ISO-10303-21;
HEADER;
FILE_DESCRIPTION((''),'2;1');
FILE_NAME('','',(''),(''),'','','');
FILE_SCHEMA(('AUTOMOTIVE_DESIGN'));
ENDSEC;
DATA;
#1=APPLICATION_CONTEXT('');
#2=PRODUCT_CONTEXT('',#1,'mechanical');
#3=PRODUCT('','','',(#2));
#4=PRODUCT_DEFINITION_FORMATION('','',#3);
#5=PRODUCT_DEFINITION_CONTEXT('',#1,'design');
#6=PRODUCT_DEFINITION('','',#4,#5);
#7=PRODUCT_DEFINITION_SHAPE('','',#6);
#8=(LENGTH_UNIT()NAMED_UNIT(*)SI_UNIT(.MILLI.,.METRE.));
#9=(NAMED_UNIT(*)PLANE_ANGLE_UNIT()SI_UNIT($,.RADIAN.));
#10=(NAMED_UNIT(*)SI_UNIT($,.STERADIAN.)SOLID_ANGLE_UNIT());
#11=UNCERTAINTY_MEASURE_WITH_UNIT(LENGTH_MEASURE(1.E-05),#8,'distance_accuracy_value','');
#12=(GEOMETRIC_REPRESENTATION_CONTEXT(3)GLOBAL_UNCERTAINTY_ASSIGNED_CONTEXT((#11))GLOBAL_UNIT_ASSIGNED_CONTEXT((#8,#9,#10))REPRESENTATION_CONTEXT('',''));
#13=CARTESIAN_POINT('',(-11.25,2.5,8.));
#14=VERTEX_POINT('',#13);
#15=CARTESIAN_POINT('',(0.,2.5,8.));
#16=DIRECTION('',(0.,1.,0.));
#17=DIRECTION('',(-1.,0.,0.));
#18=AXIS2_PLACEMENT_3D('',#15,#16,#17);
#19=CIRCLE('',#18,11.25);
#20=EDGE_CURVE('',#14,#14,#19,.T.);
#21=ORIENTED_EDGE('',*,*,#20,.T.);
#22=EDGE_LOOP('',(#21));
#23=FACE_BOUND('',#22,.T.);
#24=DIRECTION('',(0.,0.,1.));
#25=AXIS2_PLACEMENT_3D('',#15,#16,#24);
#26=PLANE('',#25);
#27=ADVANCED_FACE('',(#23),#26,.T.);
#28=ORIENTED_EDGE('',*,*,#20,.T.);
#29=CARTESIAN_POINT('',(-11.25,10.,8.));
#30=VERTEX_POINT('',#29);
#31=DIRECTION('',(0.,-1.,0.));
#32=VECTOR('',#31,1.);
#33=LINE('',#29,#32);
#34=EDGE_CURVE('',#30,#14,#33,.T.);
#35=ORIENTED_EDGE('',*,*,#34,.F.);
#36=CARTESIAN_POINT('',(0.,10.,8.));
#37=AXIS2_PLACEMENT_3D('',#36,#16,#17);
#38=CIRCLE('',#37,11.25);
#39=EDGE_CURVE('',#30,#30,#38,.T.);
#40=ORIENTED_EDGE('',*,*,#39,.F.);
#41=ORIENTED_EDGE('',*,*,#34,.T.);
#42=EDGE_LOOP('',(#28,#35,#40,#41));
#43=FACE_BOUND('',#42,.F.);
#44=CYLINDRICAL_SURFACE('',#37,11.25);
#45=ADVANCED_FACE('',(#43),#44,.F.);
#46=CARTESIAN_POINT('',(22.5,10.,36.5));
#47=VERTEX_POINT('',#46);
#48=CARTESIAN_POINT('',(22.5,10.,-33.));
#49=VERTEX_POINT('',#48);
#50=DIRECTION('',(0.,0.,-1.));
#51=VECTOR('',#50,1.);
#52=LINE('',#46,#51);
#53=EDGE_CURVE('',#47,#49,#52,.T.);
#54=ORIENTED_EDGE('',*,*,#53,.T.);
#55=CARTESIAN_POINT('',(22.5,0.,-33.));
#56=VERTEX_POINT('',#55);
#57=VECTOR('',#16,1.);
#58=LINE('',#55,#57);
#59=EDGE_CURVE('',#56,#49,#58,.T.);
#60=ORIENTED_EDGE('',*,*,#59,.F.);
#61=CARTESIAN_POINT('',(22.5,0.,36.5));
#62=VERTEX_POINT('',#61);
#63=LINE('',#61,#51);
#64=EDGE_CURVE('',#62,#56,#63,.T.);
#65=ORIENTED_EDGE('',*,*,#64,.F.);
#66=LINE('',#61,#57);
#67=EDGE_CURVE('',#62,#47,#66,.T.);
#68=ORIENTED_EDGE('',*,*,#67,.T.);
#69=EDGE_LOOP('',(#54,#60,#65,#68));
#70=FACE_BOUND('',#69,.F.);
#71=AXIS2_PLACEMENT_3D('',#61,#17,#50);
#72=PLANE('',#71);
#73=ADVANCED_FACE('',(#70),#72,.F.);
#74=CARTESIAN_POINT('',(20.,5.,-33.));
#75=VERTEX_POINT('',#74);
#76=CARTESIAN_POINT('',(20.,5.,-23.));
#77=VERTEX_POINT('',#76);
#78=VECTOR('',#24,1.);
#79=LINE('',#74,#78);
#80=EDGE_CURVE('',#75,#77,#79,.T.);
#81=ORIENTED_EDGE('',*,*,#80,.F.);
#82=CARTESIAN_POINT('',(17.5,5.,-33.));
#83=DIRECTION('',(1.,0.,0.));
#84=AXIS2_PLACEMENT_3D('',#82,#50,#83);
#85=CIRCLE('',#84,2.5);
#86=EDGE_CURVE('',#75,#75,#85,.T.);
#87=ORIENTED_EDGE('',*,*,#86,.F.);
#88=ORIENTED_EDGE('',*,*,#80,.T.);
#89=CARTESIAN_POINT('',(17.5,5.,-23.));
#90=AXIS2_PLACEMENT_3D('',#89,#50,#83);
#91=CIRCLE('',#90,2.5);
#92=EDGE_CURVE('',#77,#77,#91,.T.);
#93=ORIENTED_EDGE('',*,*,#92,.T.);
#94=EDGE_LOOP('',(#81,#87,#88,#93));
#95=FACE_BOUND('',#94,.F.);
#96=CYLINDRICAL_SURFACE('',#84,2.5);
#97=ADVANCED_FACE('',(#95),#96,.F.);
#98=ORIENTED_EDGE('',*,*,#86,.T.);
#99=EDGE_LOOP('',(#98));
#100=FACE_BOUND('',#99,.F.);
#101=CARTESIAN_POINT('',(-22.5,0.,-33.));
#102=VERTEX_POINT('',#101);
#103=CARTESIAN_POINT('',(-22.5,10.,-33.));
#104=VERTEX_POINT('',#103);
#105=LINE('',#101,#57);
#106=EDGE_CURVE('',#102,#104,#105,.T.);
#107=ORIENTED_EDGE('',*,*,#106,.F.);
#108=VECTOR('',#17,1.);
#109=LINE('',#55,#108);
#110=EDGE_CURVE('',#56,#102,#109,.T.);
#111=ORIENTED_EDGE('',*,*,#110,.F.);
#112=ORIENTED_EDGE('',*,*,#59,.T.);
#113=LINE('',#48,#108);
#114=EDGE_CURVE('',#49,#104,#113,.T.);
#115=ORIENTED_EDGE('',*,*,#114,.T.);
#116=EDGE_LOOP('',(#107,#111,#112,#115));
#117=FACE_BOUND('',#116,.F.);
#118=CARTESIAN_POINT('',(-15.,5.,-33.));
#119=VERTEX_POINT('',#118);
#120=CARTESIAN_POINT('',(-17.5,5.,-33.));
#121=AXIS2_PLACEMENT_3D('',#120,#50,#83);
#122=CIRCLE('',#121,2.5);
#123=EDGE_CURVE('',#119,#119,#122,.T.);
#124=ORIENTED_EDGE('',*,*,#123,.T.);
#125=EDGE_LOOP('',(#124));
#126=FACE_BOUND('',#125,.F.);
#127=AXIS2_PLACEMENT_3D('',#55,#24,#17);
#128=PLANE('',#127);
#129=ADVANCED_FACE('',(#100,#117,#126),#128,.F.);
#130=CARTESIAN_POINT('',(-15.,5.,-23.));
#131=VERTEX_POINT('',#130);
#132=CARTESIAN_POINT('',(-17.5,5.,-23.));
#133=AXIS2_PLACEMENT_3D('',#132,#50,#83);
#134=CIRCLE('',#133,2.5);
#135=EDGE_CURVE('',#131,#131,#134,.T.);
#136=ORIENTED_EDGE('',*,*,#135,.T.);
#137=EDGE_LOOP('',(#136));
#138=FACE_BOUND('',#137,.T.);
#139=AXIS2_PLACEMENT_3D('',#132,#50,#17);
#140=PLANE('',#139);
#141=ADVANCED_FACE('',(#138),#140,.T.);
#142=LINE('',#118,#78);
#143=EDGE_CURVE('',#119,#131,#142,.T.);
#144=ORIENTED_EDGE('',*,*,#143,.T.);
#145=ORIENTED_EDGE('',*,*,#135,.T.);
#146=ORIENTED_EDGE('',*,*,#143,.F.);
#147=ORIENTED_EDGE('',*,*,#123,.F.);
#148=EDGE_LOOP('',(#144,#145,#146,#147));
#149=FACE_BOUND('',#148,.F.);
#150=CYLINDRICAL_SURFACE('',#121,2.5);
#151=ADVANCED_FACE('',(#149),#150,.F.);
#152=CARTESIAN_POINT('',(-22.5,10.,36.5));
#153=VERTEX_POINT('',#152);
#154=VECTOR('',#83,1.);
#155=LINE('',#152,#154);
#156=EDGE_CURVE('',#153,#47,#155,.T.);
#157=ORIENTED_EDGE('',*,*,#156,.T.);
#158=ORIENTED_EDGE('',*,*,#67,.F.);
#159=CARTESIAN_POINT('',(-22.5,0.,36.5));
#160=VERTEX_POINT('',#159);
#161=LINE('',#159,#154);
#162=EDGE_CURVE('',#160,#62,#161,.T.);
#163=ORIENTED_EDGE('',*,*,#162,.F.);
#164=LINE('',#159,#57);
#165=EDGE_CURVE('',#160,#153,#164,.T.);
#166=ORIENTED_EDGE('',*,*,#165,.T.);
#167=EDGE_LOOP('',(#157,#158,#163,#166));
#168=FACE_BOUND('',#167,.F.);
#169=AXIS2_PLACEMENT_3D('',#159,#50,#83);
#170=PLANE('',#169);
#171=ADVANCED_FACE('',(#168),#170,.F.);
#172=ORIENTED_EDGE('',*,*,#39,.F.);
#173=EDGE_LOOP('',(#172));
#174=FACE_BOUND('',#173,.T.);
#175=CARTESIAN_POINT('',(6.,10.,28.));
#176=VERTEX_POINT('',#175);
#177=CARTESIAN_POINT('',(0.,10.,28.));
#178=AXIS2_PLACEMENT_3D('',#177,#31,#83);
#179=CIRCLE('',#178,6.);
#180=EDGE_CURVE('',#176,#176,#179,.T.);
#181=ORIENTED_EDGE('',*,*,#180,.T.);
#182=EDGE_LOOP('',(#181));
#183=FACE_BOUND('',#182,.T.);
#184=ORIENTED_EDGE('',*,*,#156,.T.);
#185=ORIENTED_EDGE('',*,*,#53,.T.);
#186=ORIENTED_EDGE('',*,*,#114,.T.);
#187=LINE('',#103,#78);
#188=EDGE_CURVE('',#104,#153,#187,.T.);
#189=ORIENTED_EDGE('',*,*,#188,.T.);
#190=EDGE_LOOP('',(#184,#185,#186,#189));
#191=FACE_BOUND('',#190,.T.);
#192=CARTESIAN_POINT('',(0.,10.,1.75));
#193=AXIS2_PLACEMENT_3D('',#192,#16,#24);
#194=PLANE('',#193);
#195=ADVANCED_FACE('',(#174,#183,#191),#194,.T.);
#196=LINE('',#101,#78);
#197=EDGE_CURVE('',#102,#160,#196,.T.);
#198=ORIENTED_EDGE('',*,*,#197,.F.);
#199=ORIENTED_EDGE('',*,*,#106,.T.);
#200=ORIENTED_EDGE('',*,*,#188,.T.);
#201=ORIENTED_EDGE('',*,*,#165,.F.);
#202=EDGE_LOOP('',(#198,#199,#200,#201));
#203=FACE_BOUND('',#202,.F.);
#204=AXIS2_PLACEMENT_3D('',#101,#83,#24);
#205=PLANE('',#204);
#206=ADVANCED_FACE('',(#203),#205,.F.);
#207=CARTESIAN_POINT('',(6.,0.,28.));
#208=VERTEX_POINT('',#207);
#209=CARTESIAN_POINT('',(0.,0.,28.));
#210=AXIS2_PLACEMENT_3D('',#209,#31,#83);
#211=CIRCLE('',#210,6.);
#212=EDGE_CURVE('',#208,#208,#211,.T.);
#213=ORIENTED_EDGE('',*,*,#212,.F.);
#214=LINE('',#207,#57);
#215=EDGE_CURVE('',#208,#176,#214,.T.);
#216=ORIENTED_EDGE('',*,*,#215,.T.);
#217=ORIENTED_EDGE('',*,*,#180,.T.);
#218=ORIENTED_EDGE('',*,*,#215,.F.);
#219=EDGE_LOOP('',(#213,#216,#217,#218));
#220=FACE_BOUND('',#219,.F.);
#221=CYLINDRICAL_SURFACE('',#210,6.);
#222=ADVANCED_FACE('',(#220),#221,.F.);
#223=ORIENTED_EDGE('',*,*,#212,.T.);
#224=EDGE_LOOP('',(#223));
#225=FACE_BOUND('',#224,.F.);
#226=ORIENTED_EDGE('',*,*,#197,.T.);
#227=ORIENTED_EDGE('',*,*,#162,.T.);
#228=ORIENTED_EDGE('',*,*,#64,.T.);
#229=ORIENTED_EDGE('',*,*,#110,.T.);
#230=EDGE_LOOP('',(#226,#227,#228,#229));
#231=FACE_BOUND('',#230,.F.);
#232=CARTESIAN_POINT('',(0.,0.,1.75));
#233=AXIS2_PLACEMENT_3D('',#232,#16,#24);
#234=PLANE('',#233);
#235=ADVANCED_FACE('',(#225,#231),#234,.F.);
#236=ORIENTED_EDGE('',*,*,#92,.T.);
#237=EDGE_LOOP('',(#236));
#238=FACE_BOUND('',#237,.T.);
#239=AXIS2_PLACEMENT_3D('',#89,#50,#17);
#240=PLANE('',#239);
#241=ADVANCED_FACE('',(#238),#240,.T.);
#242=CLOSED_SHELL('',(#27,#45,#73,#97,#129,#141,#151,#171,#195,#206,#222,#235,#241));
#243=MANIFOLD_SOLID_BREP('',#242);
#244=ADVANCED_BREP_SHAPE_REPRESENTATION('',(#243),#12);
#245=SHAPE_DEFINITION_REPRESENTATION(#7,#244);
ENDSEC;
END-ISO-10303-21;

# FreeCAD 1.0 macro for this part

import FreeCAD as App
import Part
import Sketcher
from FreeCAD import Vector
Q = App.Units.Quantity


def add_polygon(sketch, points):
    """Adds a closed chain of lines whose ends are joined by coincident constraints."""
    first, n = sketch.GeometryCount, len(points)
    for a, b in zip(points, points[1:] + points[:1]):
        sketch.addGeometry(Part.LineSegment(App.Vector(*a, 0), App.Vector(*b, 0)), False)
    for i in range(n):
        sketch.addConstraint(Sketcher.Constraint("Coincident", first + i, 2, first + (i + 1) % n, 1))

doc = App.newDocument("Part")
params = doc.addObject("Spreadsheet::Sheet", "Params")
for row, (alias, value) in enumerate([
    ("sketch1_diameter", "12 mm"),
    ("sketch1_diameter2", "9.2 mm"),
    ("sketch1_width", "45 mm"),
    ("sketch1_height", "69.5 mm"),
    ("pad1_length", "10 mm"),
    ("sketch2_diameter", "22.5 mm"),
    ("pocket1_length", "7.5 mm"),
    ("sketch3_diameter", "5 mm"),
    ("pocket2_length", "10 mm"),
    ("sketch4_diameter", "9.2 mm"),
    ("pad2_length", "2.5 mm"),
    ("sketch5_diameter", "5 mm"),
    ("pocket3_length", "10 mm"),
], start=1):
    params.set(f"A{row}", alias)
    params.set(f"B{row}", "=" + value)
    params.setAlias(f"B{row}", alias)

body = doc.addObject("PartDesign::Body", "Body")

# Sketch on XZ plane
sketch1 = body.newObject("Sketcher::SketchObject", "Sketch")
sketch1.AttachmentSupport = (doc.getObject("XZ_Plane"), [""])
sketch1.MapMode = "FlatFace"
add_polygon(sketch1, [(22.5, -33), (22.5, 36.5), (-22.5, 36.5), (-22.5, -33)])  # lines 0-3
sketch1.addGeometry(Part.Circle(Vector(0, 8, 0), Vector(0, 0, 1), 4.6), False)  # 4
sketch1.addGeometry(Part.Circle(Vector(0, 28, 0), Vector(0, 0, 1), 6), False)  # 5
sketch1.addConstraint(Sketcher.Constraint("Vertical", 0))
sketch1.addConstraint(Sketcher.Constraint("Horizontal", 1))
sketch1.addConstraint(Sketcher.Constraint("Vertical", 2))
sketch1.addConstraint(Sketcher.Constraint("Horizontal", 3))
sketch1.addConstraint(Sketcher.Constraint("PointOnObject", 4, 3, -2))
sketch1.addConstraint(Sketcher.Constraint("PointOnObject", 5, 3, -2))
sketch1.addConstraint(Sketcher.Constraint("Diameter", 5, Q("12 mm")))
sketch1.addConstraint(Sketcher.Constraint("Diameter", 4, Q("9.2 mm")))
sketch1.addConstraint(Sketcher.Constraint("DistanceX", 1, 2, 1, 1, Q("45 mm")))
sketch1.addConstraint(Sketcher.Constraint("DistanceY", 0, 1, 0, 2, Q("69.5 mm")))
sketch1.addConstraint(Sketcher.Constraint("DistanceY", -1, 1, 4, 3, Q("8 mm")))
sketch1.addConstraint(Sketcher.Constraint("DistanceY", -1, 1, 5, 3, Q("28 mm")))
sketch1.addConstraint(Sketcher.Constraint("DistanceY", 2, 2, -1, 1, Q("33 mm")))
sketch1.addConstraint(Sketcher.Constraint("DistanceX", -1, 1, 0, 2, Q("22.5 mm")))
sketch1.setExpression("Constraints[10]", "Params.sketch1_diameter")
sketch1.setExpression("Constraints[11]", "Params.sketch1_diameter2")
sketch1.setExpression("Constraints[12]", "Params.sketch1_width")
sketch1.setExpression("Constraints[13]", "Params.sketch1_height")
pad1 = body.newObject("PartDesign::Pad", "Pad")
pad1.Profile = sketch1
pad1.setExpression("Length", "Params.pad1_length")
pad1.Reversed = True

# Sketch on XZ plane
sketch2 = body.newObject("Sketcher::SketchObject", "Sketch001")
sketch2.AttachmentSupport = (doc.getObject("XZ_Plane"), [""])
sketch2.MapMode = "FlatFace"
sketch2.AttachmentOffset = App.Placement(Vector(0, 0, -10), App.Rotation())
sketch2.addGeometry(Part.Circle(Vector(0, 8, 0), Vector(0, 0, 1), 11), False)
sketch2.addConstraint(Sketcher.Constraint("PointOnObject", 0, 3, -2))
sketch2.addConstraint(Sketcher.Constraint("Diameter", 0, Q("22.5 mm")))
sketch2.addConstraint(Sketcher.Constraint("DistanceY", -1, 1, 0, 3, Q("8 mm")))
sketch2.setExpression("Constraints[1]", "Params.sketch2_diameter")
pocket1 = body.newObject("PartDesign::Pocket", "Pocket")
pocket1.Profile = sketch2
pocket1.setExpression("Length", "Params.pocket1_length")
pocket1.Reversed = True

# Sketch on XY plane
sketch3 = body.newObject("Sketcher::SketchObject", "Sketch002")
sketch3.AttachmentSupport = (doc.getObject("XY_Plane"), [""])
sketch3.MapMode = "FlatFace"
sketch3.AttachmentOffset = App.Placement(Vector(0, 0, -33), App.Rotation())
sketch3.addGeometry(Part.Circle(Vector(-17.5, 5, 0), Vector(0, 0, 1), 2.5), False)
sketch3.addConstraint(Sketcher.Constraint("Diameter", 0, Q("5 mm")))
sketch3.addConstraint(Sketcher.Constraint("DistanceY", -1, 1, 0, 3, Q("5 mm")))
sketch3.addConstraint(Sketcher.Constraint("DistanceX", 0, 3, -1, 1, Q("17.5 mm")))
sketch3.setExpression("Constraints[0]", "Params.sketch3_diameter")
pocket2 = body.newObject("PartDesign::Pocket", "Pocket001")
pocket2.Profile = sketch3
pocket2.setExpression("Length", "Params.pocket2_length")
pocket2.Reversed = True

# Sketch on XZ plane
sketch4 = body.newObject("Sketcher::SketchObject", "Sketch003")
sketch4.AttachmentSupport = (doc.getObject("XZ_Plane"), [""])
sketch4.MapMode = "FlatFace"
sketch4.AttachmentOffset = App.Placement(Vector(0, 0, -2.5), App.Rotation())
sketch4.addGeometry(Part.Circle(Vector(0, 8, 0), Vector(0, 0, 1), 4.6), False)
sketch4.addConstraint(Sketcher.Constraint("PointOnObject", 0, 3, -2))
sketch4.addConstraint(Sketcher.Constraint("Diameter", 0, Q("9.2 mm")))
sketch4.addConstraint(Sketcher.Constraint("DistanceY", -1, 1, 0, 3, Q("8 mm")))
sketch4.setExpression("Constraints[1]", "Params.sketch4_diameter")
pad2 = body.newObject("PartDesign::Pad", "Pad001")
pad2.Profile = sketch4
pad2.setExpression("Length", "Params.pad2_length")

# Sketch on XY plane
sketch5 = body.newObject("Sketcher::SketchObject", "Sketch004")
sketch5.AttachmentSupport = (doc.getObject("XY_Plane"), [""])
sketch5.MapMode = "FlatFace"
sketch5.AttachmentOffset = App.Placement(Vector(0, 0, -33), App.Rotation())
sketch5.addGeometry(Part.Circle(Vector(17.5, 5, 0), Vector(0, 0, 1), 2.5), False)
sketch5.addConstraint(Sketcher.Constraint("Diameter", 0, Q("5 mm")))
sketch5.addConstraint(Sketcher.Constraint("DistanceY", -1, 1, 0, 3, Q("5 mm")))
sketch5.addConstraint(Sketcher.Constraint("DistanceX", -1, 1, 0, 3, Q("17.5 mm")))
sketch5.setExpression("Constraints[0]", "Params.sketch5_diameter")
pocket3 = body.newObject("PartDesign::Pocket", "Pocket002")
pocket3.Profile = sketch5
pocket3.setExpression("Length", "Params.pocket3_length")
pocket3.Reversed = True

doc.recompute()
